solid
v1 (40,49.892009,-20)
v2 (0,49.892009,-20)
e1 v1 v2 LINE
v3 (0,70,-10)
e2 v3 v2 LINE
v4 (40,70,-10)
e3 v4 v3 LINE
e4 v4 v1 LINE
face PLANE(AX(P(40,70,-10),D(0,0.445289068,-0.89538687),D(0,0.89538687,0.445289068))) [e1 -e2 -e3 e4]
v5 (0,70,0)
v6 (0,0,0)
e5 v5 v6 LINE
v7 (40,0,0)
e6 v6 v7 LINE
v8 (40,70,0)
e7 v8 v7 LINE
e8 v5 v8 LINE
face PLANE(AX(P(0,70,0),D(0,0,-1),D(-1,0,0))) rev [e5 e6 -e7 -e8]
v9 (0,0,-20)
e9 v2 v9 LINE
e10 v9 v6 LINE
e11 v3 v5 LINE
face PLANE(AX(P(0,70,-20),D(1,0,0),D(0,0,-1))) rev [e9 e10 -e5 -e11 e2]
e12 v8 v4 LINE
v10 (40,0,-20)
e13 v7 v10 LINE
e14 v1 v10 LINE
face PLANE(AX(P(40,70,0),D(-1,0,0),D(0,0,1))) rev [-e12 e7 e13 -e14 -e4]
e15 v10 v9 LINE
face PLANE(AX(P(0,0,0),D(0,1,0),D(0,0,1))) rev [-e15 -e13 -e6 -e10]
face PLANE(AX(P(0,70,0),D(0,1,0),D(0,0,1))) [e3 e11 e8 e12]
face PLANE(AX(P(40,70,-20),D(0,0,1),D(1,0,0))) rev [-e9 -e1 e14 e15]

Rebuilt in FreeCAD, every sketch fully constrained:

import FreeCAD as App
import Part
import Sketcher
Q = App.Units.Quantity


def add_polygon(sketch, points):
    """Adds a closed chain of lines whose ends are joined by coincident constraints."""
    first, n = sketch.GeometryCount, len(points)
    for a, b in zip(points, points[1:] + points[:1]):
        sketch.addGeometry(Part.LineSegment(App.Vector(*a, 0), App.Vector(*b, 0)), False)
    for i in range(n):
        sketch.addConstraint(Sketcher.Constraint("Coincident", first + i, 2, first + (i + 1) % n, 1))

doc = App.newDocument("Part")
body = doc.addObject("PartDesign::Body", "Body")

# Sketch on XZ plane
sketch1 = body.newObject("Sketcher::SketchObject", "Sketch")
sketch1.AttachmentSupport = (doc.getObject("XZ_Plane"), [""])
sketch1.MapMode = "FlatFace"
add_polygon(sketch1, [(0, -20), (0, 0), (40, 0), (40, -20)])  # lines 0-3
sketch1.addConstraint(Sketcher.Constraint("Vertical", 0))
sketch1.addConstraint(Sketcher.Constraint("Horizontal", 1))
sketch1.addConstraint(Sketcher.Constraint("Vertical", 2))
sketch1.addConstraint(Sketcher.Constraint("Horizontal", 3))
sketch1.addConstraint(Sketcher.Constraint("Coincident", 0, 2, -1, 1))
sketch1.addConstraint(Sketcher.Constraint("DistanceX", 1, 1, 1, 2, Q("40 mm")))
sketch1.addConstraint(Sketcher.Constraint("DistanceY", 0, 1, 0, 2, Q("20 mm")))
pad1 = body.newObject("PartDesign::Pad", "Pad")
pad1.Profile = sketch1
pad1.Length = 70
pad1.Reversed = True

# Sketch on YZ plane
sketch2 = body.newObject("Sketcher::SketchObject", "Sketch001")
sketch2.AttachmentSupport = (doc.getObject("YZ_Plane"), [""])
sketch2.MapMode = "FlatFace"
add_polygon(sketch2, [(70, -10), (50, -20), (66, -28), (75, -20)])  # lines 0-3
sketch2.addConstraint(Sketcher.Constraint("Perpendicular", 0, 3))
sketch2.addConstraint(Sketcher.Constraint("Horizontal", 0, 2, 2, 2))
sketch2.addConstraint(Sketcher.Constraint("DistanceY", 0, 2, -1, 1, Q("20 mm")))
sketch2.addConstraint(Sketcher.Constraint("DistanceX", -1, 1, 3, 2, Q("70 mm")))
sketch2.addConstraint(Sketcher.Constraint("DistanceY", 3, 2, -1, 1, Q("10 mm")))
sketch2.addConstraint(Sketcher.Constraint("DistanceX", -1, 1, 0, 2, Q("49.892009 mm")))
sketch2.addConstraint(Sketcher.Constraint("DistanceY", 1, 2, -1, 1, Q("27.740622 mm")))
sketch2.addConstraint(Sketcher.Constraint("Distance", 1, Q("18.126015 mm")))
pocket1 = body.newObject("PartDesign::Pocket", "Pocket")
pocket1.Profile = sketch2
pocket1.Length = 40
pocket1.Reversed = True

doc.recompute()
